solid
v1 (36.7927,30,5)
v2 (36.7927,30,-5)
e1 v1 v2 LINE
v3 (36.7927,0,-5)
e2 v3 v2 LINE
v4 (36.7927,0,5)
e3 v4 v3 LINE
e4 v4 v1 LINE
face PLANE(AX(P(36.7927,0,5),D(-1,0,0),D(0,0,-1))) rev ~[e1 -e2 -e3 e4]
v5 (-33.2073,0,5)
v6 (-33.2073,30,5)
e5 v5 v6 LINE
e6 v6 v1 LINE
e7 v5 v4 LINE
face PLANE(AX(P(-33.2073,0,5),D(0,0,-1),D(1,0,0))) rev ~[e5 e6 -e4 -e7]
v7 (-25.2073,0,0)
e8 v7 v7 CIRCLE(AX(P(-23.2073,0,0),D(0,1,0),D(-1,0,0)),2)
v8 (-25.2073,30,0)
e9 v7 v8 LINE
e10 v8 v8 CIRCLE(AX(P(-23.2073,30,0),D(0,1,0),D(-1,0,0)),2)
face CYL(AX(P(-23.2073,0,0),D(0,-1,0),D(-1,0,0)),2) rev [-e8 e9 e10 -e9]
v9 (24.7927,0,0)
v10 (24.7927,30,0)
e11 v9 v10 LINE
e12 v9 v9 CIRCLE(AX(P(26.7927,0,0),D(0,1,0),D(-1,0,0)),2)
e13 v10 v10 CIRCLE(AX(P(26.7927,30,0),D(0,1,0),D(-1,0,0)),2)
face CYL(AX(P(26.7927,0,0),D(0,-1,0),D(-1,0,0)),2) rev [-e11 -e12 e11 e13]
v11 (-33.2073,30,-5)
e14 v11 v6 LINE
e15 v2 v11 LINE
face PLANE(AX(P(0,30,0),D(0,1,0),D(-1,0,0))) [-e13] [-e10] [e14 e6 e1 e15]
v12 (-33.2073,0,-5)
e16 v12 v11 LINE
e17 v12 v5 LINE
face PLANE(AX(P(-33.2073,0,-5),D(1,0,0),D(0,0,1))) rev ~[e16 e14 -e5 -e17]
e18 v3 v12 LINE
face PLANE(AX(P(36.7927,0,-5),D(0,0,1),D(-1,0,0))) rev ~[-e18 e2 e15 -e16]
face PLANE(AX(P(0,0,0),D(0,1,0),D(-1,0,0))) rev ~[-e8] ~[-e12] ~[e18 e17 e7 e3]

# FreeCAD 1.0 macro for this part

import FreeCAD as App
import Part
import Sketcher

V = App.Vector
Q = App.Units.Quantity


def add_polygon(sketch, points):
    """Adds a closed chain of lines whose ends are joined by coincident constraints."""
    first, n = sketch.GeometryCount, len(points)
    for a, b in zip(points, points[1:] + points[:1]):
        sketch.addGeometry(Part.LineSegment(App.Vector(*a, 0), App.Vector(*b, 0)), False)
    for i in range(n):
        sketch.addConstraint(Sketcher.Constraint("Coincident", first + i, 2, first + (i + 1) % n, 1))

doc = App.newDocument("Part")
params = doc.addObject("Spreadsheet::Sheet", "Params")
for row, (alias, value) in enumerate([
    ("sketch1_diameter", "4 mm"),
    ("sketch1_width", "70 mm"),
    ("sketch1_height", "10 mm"),
    ("pad1_length", "30 mm"),
], start=1):
    params.set(f"A{row}", alias)
    params.set(f"B{row}", "=" + value)
    params.setAlias(f"B{row}", alias)

body = doc.addObject("PartDesign::Body", "Body")

sketch1 = doc.addObject("Sketcher::SketchObject", "Sketch")
body.addObject(sketch1)
sketch1.AttachmentSupport = (doc.XZ_Plane, [""])
sketch1.MapMode = "FlatFace"
add_polygon(sketch1, [(-33.2, -5), (-33.2, 5), (36.8, 5), (36.8, -5)])
sketch1.addGeometry(Part.Circle(V(26.8, 0, 0), V(0, 0, 1), 2), False)
sketch1.addGeometry(Part.Circle(V(-23.2, 0, 0), V(0, 0, 1), 2), False)
sketch1.addConstraint([
    Sketcher.Constraint("Vertical", 0),
    Sketcher.Constraint("Horizontal", 1),
    Sketcher.Constraint("Vertical", 2),
    Sketcher.Constraint("Horizontal", 3),
    Sketcher.Constraint("Equal", 4, 5),
    Sketcher.Constraint("PointOnObject", 4, 3, -1),
    Sketcher.Constraint("PointOnObject", 5, 3, -1),
    Sketcher.Constraint("Diameter", 4, Q("4 mm")),
    Sketcher.Constraint("DistanceX", 1, 1, 1, 2, Q("70 mm")),
    Sketcher.Constraint("DistanceY", 0, 1, 0, 2, Q("10 mm")),
    Sketcher.Constraint("DistanceX", 5, 3, 4, 3, Q("50 mm")),
    Sketcher.Constraint("DistanceX", 0, 2, 5, 3, Q("10 mm")),
    Sketcher.Constraint("DistanceY", -1, 1, 0, 2, Q("5 mm")),
    Sketcher.Constraint("DistanceX", -1, 1, 4, 3, Q("26.7927 mm")),
])
sketch1.setExpression("Constraints[11]", "Params.sketch1_diameter")
sketch1.setExpression("Constraints[12]", "Params.sketch1_width")
sketch1.setExpression("Constraints[13]", "Params.sketch1_height")
pad1 = doc.addObject("PartDesign::Pad", "Pad")
body.addObject(pad1)
pad1.Profile = sketch1
pad1.setExpression("Length", "Params.pad1_length")
pad1.Reversed = True

doc.recompute()
